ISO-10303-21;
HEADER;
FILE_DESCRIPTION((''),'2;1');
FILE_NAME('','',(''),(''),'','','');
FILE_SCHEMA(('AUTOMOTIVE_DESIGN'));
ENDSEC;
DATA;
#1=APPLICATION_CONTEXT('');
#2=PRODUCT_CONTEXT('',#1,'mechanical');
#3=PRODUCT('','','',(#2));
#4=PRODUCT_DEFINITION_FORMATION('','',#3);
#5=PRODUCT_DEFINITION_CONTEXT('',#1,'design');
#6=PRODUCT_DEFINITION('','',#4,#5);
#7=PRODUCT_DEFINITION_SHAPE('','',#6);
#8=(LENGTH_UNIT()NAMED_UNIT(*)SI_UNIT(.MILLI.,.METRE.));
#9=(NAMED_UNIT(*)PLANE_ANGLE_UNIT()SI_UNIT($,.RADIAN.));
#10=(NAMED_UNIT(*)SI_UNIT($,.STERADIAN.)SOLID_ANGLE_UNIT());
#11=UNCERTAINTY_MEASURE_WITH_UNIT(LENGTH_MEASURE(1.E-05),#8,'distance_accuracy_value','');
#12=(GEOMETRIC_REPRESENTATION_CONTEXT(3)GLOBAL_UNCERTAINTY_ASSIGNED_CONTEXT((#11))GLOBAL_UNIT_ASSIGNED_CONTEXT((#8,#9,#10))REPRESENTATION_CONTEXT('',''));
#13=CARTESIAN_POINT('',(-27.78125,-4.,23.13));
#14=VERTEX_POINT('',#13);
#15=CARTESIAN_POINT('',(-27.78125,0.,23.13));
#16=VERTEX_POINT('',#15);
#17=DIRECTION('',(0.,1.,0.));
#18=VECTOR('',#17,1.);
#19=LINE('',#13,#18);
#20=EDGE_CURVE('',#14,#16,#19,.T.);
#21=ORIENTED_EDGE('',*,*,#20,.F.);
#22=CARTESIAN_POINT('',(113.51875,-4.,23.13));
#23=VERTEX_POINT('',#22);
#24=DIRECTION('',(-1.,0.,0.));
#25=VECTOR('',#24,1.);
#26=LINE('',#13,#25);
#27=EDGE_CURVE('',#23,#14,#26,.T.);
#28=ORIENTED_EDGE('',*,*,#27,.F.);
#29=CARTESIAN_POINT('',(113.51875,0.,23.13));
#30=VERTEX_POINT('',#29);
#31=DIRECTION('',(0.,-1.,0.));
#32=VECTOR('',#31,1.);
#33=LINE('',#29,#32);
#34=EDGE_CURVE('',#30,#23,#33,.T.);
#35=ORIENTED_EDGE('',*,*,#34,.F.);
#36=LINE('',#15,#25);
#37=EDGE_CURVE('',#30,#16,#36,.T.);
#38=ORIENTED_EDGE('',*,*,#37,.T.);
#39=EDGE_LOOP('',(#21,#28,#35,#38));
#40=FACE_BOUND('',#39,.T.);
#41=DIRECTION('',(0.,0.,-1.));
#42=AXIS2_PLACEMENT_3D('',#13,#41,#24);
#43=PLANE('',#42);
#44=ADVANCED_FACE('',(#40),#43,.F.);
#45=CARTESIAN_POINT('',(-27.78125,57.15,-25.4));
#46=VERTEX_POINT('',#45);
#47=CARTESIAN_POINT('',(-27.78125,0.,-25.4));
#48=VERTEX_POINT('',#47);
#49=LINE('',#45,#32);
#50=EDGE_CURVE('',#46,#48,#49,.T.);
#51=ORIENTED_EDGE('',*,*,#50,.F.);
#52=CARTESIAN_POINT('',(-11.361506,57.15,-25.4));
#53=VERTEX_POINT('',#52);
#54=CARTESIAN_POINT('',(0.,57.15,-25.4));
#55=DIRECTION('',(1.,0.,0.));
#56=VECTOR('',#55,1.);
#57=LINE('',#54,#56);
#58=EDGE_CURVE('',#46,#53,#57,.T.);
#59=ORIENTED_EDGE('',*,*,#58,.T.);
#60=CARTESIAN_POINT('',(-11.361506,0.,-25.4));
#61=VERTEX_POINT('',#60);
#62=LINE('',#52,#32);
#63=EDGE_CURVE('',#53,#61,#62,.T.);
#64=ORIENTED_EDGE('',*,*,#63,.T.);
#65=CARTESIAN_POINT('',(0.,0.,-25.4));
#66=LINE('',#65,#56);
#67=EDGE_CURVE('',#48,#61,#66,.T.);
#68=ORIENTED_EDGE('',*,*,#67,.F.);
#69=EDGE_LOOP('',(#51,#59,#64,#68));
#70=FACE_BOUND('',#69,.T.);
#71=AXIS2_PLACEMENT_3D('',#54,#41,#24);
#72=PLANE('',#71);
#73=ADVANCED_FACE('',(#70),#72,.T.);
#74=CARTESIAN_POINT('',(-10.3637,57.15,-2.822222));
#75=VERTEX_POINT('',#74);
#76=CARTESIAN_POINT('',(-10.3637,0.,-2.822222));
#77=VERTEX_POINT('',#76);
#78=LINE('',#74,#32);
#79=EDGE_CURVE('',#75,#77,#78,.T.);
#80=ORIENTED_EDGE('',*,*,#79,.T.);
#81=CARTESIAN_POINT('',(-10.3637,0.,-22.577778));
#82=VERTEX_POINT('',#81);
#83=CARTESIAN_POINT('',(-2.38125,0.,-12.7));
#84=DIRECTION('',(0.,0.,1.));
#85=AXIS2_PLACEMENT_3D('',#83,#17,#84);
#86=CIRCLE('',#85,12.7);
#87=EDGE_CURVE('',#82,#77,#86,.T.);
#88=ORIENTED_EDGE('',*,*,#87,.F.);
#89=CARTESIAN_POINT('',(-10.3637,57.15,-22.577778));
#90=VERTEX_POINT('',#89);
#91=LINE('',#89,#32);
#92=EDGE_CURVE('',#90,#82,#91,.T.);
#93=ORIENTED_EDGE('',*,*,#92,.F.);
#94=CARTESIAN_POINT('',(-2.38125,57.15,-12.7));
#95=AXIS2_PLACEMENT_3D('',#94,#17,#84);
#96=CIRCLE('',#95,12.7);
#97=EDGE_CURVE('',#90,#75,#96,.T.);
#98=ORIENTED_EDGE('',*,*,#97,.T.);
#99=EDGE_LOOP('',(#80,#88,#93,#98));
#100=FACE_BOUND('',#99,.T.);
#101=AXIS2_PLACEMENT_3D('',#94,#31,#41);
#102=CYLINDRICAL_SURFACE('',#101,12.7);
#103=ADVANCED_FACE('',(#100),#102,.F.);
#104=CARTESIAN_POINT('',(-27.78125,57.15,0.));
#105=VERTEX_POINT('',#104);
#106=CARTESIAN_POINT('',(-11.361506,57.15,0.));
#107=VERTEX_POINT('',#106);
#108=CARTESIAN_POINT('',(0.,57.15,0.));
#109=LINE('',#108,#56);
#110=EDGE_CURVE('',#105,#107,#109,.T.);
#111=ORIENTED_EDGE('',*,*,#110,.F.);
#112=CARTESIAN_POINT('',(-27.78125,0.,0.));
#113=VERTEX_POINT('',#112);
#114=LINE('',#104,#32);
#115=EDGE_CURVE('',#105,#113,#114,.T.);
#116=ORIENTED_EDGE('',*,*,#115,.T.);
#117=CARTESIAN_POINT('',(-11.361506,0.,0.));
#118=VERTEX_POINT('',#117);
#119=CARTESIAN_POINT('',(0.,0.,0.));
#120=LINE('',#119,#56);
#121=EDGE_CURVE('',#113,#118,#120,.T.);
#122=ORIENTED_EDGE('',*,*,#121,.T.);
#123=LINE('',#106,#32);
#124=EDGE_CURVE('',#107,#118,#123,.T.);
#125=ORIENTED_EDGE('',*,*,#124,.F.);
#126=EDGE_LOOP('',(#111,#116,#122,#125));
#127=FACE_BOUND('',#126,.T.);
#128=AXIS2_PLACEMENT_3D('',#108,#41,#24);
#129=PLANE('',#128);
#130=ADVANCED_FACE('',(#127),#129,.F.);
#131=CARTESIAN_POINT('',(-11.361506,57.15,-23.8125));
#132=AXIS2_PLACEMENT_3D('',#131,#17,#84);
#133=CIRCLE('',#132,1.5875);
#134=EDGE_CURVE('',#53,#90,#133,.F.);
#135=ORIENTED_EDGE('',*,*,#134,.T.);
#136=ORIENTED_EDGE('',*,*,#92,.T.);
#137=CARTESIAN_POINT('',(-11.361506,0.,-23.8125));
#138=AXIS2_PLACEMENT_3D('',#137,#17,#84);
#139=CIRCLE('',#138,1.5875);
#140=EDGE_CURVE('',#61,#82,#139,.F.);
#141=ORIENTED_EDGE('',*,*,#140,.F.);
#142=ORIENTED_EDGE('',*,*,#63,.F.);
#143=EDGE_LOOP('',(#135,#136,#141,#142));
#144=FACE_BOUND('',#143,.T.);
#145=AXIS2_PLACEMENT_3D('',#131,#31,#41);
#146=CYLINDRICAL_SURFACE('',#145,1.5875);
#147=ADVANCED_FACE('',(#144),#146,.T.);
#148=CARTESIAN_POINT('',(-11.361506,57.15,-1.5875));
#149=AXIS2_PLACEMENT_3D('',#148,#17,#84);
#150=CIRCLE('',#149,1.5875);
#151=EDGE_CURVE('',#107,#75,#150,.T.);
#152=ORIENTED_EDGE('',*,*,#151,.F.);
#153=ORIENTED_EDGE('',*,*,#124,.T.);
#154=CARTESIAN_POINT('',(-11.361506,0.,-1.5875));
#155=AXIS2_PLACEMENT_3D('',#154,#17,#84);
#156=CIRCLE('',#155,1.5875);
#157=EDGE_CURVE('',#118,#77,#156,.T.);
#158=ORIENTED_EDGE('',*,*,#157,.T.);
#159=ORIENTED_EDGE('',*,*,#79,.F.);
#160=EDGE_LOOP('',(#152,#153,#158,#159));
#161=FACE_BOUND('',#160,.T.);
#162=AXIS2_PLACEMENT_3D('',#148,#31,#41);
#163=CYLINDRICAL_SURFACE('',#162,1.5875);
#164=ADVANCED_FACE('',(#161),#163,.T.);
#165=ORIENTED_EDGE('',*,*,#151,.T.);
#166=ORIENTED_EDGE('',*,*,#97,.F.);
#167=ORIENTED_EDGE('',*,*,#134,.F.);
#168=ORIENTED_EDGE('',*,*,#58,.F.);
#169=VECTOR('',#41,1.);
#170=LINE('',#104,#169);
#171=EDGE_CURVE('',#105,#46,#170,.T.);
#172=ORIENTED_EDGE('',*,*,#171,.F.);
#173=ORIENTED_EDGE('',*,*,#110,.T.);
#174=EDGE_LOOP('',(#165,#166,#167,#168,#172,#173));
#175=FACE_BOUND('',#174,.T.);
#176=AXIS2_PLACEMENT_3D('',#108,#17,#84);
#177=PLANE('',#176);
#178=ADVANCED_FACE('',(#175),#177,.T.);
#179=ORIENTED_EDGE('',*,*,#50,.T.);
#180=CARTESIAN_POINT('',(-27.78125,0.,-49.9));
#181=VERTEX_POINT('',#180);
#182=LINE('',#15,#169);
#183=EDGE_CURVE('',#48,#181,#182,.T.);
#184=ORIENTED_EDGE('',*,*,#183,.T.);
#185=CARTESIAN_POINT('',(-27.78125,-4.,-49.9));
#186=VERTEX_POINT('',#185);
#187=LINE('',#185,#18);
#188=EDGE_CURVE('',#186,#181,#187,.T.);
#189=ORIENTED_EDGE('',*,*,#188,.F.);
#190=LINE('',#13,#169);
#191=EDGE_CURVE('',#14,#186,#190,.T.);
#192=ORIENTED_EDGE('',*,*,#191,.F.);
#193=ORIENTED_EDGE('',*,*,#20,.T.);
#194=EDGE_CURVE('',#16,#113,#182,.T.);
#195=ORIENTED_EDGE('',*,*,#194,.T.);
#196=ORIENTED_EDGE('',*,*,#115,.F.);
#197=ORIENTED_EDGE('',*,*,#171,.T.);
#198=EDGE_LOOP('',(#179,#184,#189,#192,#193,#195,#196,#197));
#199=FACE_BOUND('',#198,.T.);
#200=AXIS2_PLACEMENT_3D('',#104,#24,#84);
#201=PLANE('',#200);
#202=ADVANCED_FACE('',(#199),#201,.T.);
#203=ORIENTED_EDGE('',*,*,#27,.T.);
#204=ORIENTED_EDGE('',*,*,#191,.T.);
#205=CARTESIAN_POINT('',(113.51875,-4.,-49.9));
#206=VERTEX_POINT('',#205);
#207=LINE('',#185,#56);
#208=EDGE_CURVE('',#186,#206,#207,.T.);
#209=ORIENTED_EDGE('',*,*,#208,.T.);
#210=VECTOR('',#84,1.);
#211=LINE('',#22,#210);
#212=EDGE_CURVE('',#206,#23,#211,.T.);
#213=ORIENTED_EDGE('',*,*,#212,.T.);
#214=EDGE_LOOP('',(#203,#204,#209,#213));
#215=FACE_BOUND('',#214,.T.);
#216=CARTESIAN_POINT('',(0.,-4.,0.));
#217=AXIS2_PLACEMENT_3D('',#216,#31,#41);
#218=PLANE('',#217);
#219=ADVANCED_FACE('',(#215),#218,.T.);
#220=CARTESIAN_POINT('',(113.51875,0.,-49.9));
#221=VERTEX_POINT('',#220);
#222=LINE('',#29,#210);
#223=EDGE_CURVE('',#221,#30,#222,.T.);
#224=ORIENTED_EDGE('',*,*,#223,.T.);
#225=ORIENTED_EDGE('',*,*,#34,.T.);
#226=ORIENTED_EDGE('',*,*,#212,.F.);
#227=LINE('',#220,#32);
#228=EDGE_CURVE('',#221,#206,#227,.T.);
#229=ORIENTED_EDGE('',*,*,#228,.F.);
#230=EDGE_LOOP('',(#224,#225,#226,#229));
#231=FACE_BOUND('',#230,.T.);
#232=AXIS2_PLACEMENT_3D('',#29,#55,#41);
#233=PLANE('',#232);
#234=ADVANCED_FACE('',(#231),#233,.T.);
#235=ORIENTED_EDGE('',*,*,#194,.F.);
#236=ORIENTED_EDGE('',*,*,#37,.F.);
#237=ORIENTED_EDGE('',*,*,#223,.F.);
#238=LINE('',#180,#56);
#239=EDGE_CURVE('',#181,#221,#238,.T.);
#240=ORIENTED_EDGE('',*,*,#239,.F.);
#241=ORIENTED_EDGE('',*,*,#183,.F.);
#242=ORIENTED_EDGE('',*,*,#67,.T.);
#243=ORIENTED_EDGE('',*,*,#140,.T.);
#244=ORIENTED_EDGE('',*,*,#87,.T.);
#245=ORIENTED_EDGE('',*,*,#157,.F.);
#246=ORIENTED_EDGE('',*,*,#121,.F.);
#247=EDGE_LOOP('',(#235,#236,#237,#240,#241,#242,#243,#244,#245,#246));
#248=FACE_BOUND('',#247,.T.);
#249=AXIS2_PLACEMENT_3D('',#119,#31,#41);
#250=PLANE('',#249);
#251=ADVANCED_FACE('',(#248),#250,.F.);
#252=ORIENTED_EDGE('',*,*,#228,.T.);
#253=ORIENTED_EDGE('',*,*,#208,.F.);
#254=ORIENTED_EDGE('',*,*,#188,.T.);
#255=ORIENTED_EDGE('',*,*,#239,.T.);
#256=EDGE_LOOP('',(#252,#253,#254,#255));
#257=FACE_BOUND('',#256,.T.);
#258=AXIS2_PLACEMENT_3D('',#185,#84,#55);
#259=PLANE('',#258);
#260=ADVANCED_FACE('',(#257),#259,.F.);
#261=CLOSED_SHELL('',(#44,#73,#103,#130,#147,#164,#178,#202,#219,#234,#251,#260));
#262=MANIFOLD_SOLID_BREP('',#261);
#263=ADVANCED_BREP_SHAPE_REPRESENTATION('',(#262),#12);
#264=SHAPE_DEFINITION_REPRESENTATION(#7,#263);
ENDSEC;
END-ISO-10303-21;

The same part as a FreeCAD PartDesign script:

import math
import FreeCAD as App
import Part
import Sketcher

V = App.Vector
Q = App.Units.Quantity


def add_polygon(sketch, points):
    """Adds a closed chain of lines whose ends are joined by coincident constraints."""
    first, n = sketch.GeometryCount, len(points)
    for a, b in zip(points, points[1:] + points[:1]):
        sketch.addGeometry(Part.LineSegment(App.Vector(*a, 0), App.Vector(*b, 0)), False)
    for i in range(n):
        sketch.addConstraint(Sketcher.Constraint("Coincident", first + i, 2, first + (i + 1) % n, 1))

doc = App.newDocument("Part")
body = doc.addObject("PartDesign::Body", "Body")

# Sketch on XZ plane
sketch1 = body.newObject("Sketcher::SketchObject", "Sketch")
sketch1.AttachmentSupport = (doc.getObject("XZ_Plane"), [""])
sketch1.MapMode = "FlatFace"
sketch1.addGeometry([
    Part.LineSegment(V(-27.78125, -25.4, 0), V(-27.78125, 0, 0)),  # 0
    Part.LineSegment(V(-27.78125, 0, 0), V(-11.361506, 0, 0)),  # 1
    Part.ArcOfCircle(Part.Circle(V(-11.361506, -1.5875, 0), V(0, 0, 1), 1.5875), math.radians(-51.057559), math.radians(90)),  # 2
    Part.ArcOfCircle(Part.Circle(V(-2.38125, -12.7, 0), V(0, 0, 1), 12.7), math.radians(128.942441), math.radians(231.057559)),  # 3
    Part.ArcOfCircle(Part.Circle(V(-11.361506, -23.8125, 0), V(0, 0, 1), 1.5875), math.radians(-90), math.radians(51.057559)),  # 4
    Part.LineSegment(V(-11.361506, -25.4, 0), V(-27.78125, -25.4, 0)),  # 5
], False)
sketch1.addConstraint([
    Sketcher.Constraint("Coincident", 0, 2, 1, 1),
    Sketcher.Constraint("Tangent", 1, 2, 2, 2),
    Sketcher.Constraint("Tangent", 2, 1, 3, 1),
    Sketcher.Constraint("Tangent", 3, 2, 4, 2),
    Sketcher.Constraint("Tangent", 4, 1, 5, 1),
    Sketcher.Constraint("Coincident", 5, 2, 0, 1),
    Sketcher.Constraint("Vertical", 0),
    Sketcher.Constraint("Horizontal", 1),
    Sketcher.Constraint("Horizontal", 5),
    Sketcher.Constraint("Equal", 2, 4),
    Sketcher.Constraint("PointOnObject", 0, 2, -1),
    Sketcher.Constraint("Vertical", 2, 3, 4, 3),
    Sketcher.Constraint("Radius", 3, Q("0.5 in")),
    Sketcher.Constraint("DistanceY", 0, 1, 0, 2, Q("1 in")),
    Sketcher.Constraint("Radius", 2, Q("0.0625 in")),
    Sketcher.Constraint("DistanceX", 0, 2, 3, 3, Q("1 in")),
    Sketcher.Constraint("DistanceX", 3, 3, -1, 1, Q("0.09375 in")),
])
pad1 = body.newObject("PartDesign::Pad", "Pad")
pad1.Profile = sketch1
pad1.Length = Q("2.25 in")
pad1.Reversed = True

# Sketch on XZ plane
sketch2 = body.newObject("Sketcher::SketchObject", "Sketch001")
sketch2.AttachmentSupport = (doc.getObject("XZ_Plane"), [""])
sketch2.MapMode = "FlatFace"
add_polygon(sketch2, [(-27.78125, 23.13), (-27.78125, -49.9), (-6.38968, -49.9), (-6.38968, 23.13)])  # lines 0-3
sketch2.addConstraint([
    Sketcher.Constraint("Vertical", 0),
    Sketcher.Constraint("Horizontal", 1),
    Sketcher.Constraint("Vertical", 2),
    Sketcher.Constraint("Horizontal", 3),
    Sketcher.Constraint("DistanceX", 0, 2, -1, 1, Q("1.09375 in")),
    Sketcher.Constraint("DistanceY", 0, 2, 0, 1, Q("73.03 mm")),
    Sketcher.Constraint("DistanceX", 1, 1, 1, 2, Q("21.39157 mm")),
    Sketcher.Constraint("DistanceY", 0, 2, -1, 1, Q("49.9 mm")),
])
pad2 = body.newObject("PartDesign::Pad", "Pad001")
pad2.Profile = sketch2
pad2.Length = 4

# Sketch on XZ plane
sketch3 = body.newObject("Sketcher::SketchObject", "Sketch002")
sketch3.AttachmentSupport = (doc.getObject("XZ_Plane"), [""])
sketch3.MapMode = "FlatFace"
sketch3.AttachmentOffset = App.Placement(V(0, 0, 4), App.Rotation())
add_polygon(sketch3, [(113.51875, -49.9), (113.51875, 23.13), (-6.38968, 23.13), (-6.38968, -49.9)])  # lines 0-3
sketch3.addConstraint([
    Sketcher.Constraint("Vertical", 0),
    Sketcher.Constraint("Horizontal", 1),
    Sketcher.Constraint("Vertical", 2),
    Sketcher.Constraint("Horizontal", 3),
    Sketcher.Constraint("DistanceY", 0, 1, 0, 2, Q("73.03 mm")),
    Sketcher.Constraint("DistanceX", 1, 2, 1, 1, Q("119.90843 mm")),
    Sketcher.Constraint("DistanceY", -1, 1, 0, 2, Q("23.13 mm")),
    Sketcher.Constraint("DistanceX", -1, 1, 0, 2, Q("113.51875 mm")),
])
pad3 = body.newObject("PartDesign::Pad", "Pad002")
pad3.Profile = sketch3
pad3.Length = 4
pad3.Reversed = True

doc.recompute()
